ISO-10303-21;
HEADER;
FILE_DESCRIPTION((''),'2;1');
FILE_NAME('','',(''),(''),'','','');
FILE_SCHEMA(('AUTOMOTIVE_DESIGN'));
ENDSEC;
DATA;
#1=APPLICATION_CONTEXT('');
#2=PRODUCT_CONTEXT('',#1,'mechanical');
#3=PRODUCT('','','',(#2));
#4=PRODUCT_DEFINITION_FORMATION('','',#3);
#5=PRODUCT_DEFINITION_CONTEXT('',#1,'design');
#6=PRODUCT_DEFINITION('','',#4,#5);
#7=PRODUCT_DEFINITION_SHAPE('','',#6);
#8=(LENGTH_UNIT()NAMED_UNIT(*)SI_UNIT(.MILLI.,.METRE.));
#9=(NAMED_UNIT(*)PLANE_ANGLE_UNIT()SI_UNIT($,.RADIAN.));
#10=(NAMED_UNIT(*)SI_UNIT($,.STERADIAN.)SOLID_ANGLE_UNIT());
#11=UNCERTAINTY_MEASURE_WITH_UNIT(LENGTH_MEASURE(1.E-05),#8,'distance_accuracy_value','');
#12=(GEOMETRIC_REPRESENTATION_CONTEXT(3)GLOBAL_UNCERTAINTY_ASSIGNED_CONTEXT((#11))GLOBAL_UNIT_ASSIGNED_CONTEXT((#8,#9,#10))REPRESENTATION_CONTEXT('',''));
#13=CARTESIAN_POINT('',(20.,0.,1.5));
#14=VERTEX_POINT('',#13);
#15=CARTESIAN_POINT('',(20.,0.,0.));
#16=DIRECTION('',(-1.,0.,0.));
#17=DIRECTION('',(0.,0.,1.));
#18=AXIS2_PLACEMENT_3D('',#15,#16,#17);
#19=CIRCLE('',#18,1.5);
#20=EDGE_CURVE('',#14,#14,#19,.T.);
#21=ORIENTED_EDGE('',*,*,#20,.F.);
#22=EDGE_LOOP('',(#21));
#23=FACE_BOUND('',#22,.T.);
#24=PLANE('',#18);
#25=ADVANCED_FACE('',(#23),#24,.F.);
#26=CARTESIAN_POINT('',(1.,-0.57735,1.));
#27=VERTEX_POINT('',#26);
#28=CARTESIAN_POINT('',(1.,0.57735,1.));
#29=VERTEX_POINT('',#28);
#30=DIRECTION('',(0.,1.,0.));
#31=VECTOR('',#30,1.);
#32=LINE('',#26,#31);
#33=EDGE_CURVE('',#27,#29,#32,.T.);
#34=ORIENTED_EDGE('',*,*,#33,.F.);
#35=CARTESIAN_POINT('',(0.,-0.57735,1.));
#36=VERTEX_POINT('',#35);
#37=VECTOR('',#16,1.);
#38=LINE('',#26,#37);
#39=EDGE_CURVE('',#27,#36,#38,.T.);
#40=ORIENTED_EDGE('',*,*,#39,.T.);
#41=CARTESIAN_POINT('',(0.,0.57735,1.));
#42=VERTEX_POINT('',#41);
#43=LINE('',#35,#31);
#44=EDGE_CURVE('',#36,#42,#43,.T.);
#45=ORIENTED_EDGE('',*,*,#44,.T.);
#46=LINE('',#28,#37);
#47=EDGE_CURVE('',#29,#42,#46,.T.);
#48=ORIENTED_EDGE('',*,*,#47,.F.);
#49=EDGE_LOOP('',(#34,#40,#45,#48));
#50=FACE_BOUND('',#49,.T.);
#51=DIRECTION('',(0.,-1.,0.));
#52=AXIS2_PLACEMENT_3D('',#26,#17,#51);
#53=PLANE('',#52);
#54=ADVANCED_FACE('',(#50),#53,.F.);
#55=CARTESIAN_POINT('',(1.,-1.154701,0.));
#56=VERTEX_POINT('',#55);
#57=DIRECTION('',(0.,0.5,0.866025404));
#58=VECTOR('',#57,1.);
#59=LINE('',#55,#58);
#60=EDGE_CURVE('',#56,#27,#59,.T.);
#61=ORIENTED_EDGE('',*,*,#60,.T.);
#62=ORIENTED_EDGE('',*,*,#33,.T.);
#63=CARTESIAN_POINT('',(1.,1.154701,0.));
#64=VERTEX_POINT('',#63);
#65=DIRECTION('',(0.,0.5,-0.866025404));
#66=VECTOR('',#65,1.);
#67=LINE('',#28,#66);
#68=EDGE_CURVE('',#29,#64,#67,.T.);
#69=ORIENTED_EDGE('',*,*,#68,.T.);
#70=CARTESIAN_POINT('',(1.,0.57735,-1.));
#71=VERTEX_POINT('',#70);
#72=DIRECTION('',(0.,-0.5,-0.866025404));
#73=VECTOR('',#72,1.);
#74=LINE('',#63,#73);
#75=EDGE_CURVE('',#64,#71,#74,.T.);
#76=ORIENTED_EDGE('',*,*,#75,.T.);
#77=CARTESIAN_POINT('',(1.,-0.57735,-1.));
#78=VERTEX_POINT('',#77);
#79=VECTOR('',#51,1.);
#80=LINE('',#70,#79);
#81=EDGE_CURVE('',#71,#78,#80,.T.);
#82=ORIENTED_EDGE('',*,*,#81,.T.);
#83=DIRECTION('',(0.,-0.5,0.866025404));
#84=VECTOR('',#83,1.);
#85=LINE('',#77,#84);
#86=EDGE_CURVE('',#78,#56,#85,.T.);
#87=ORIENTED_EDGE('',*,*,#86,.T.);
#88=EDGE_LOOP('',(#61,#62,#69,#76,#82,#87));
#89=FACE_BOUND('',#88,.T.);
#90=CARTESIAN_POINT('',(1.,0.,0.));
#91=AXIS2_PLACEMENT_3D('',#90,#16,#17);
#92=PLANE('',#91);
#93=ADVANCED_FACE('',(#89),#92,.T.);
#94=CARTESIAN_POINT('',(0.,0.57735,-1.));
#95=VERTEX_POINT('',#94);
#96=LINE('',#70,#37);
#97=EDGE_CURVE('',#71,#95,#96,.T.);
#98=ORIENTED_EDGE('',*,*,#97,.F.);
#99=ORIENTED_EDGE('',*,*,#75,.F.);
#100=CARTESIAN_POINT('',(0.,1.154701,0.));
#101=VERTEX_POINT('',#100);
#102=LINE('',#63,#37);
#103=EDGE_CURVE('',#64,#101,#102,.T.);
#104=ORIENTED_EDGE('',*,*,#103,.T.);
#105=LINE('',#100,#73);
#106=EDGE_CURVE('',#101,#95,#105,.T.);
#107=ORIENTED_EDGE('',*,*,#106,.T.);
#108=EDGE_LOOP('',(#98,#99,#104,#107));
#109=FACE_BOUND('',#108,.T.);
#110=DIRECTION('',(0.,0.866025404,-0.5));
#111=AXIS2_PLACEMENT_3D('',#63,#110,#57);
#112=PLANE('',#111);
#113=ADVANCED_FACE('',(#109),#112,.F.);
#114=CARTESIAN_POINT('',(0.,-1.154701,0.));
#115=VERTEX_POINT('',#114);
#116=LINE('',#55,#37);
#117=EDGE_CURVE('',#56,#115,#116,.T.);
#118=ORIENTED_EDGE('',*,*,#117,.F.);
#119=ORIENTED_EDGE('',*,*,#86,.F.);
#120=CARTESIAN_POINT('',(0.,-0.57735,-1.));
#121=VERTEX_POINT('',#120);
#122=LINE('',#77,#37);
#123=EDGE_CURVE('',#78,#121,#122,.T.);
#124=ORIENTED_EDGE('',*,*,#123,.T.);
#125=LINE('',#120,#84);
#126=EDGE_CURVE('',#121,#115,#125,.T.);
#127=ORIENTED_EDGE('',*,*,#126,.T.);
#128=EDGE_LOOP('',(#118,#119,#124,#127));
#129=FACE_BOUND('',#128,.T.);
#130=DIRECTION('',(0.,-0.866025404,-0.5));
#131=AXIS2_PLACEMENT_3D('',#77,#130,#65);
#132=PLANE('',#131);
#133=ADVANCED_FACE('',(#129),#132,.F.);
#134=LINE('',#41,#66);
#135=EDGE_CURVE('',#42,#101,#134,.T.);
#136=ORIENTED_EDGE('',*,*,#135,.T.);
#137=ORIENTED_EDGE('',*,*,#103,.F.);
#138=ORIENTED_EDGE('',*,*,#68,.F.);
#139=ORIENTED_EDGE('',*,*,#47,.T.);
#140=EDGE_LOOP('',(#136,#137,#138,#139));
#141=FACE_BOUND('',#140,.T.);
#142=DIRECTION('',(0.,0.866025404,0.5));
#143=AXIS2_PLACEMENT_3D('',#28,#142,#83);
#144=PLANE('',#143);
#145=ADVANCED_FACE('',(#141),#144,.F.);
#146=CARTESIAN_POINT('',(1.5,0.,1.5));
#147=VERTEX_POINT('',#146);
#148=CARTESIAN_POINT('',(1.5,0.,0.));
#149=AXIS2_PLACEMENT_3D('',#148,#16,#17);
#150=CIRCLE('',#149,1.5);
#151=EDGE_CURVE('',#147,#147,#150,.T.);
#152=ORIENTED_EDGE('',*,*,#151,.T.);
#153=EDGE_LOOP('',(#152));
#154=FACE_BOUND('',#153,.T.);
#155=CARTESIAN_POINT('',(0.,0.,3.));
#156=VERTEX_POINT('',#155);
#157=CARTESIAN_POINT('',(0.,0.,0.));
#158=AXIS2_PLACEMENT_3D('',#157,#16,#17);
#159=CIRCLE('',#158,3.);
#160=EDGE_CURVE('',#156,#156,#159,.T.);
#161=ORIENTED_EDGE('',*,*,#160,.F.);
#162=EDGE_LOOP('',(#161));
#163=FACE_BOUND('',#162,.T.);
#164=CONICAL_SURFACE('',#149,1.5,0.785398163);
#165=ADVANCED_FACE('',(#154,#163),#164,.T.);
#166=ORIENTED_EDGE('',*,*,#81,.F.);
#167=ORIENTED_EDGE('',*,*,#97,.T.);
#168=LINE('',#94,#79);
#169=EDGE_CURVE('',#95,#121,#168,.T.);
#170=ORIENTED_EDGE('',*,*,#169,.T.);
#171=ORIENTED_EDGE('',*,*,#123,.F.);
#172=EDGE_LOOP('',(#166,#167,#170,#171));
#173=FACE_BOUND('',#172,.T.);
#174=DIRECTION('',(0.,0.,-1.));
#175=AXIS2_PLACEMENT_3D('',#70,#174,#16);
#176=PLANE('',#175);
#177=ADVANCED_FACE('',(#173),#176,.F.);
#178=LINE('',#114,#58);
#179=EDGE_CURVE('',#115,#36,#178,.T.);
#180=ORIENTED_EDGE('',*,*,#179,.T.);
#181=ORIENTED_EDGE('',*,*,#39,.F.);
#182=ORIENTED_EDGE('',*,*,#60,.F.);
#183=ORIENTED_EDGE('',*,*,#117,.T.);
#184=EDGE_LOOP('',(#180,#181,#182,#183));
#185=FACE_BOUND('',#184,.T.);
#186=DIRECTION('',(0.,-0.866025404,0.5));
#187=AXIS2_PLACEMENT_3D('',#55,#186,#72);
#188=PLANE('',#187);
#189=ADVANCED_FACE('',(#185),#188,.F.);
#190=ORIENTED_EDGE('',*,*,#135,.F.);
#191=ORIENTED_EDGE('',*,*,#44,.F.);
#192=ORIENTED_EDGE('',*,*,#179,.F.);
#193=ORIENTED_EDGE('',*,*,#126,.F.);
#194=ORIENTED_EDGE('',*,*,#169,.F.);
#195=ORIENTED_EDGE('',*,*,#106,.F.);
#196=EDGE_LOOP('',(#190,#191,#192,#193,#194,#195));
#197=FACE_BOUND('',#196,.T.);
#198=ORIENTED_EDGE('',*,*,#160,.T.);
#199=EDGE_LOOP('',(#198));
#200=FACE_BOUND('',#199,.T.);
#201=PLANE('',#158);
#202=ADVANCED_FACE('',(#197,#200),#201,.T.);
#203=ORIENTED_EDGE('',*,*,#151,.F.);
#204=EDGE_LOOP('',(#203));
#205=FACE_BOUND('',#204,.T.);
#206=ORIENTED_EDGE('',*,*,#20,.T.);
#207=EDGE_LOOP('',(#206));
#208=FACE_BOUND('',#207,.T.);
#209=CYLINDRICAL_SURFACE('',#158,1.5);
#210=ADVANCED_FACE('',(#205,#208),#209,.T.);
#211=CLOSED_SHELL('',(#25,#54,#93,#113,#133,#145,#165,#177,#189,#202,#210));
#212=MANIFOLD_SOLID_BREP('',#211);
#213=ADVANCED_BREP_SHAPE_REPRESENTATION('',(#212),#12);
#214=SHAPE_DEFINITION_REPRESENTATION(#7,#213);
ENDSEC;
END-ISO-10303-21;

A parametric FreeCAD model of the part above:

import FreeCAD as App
import Part
import Sketcher
Q = App.Units.Quantity

doc = App.newDocument("Part")
body = doc.addObject("PartDesign::Body", "Body")

# Sketch on XY plane
sketch1 = doc.addObject("Sketcher::SketchObject", "Sketch")
body.addObject(sketch1)
sketch1.AttachmentSupport = (doc.XY_Plane, [""])
sketch1.MapMode = "FlatFace"
sketch1.addGeometry(Part.LineSegment(App.Vector(0, 3, 0), App.Vector(0, 0, 0)), False)
sketch1.addGeometry(Part.LineSegment(App.Vector(0, 0, 0), App.Vector(20, 0, 0)), False)
sketch1.addGeometry(Part.LineSegment(App.Vector(20, 0, 0), App.Vector(20, 1.5, 0)), False)
sketch1.addGeometry(Part.LineSegment(App.Vector(20, 1.5, 0), App.Vector(1.5, 1.5, 0)), False)
sketch1.addGeometry(Part.LineSegment(App.Vector(1.5, 1.5, 0), App.Vector(0, 3, 0)), False)
sketch1.addConstraint(Sketcher.Constraint("Coincident", 0, 2, 1, 1))
sketch1.addConstraint(Sketcher.Constraint("Coincident", 1, 2, 2, 1))
sketch1.addConstraint(Sketcher.Constraint("Coincident", 2, 2, 3, 1))
sketch1.addConstraint(Sketcher.Constraint("Coincident", 3, 2, 4, 1))
sketch1.addConstraint(Sketcher.Constraint("Coincident", 4, 2, 0, 1))
sketch1.addConstraint(Sketcher.Constraint("Vertical", 0))
sketch1.addConstraint(Sketcher.Constraint("Horizontal", 1))
sketch1.addConstraint(Sketcher.Constraint("Vertical", 2))
sketch1.addConstraint(Sketcher.Constraint("Horizontal", 3))
sketch1.addConstraint(Sketcher.Constraint("Coincident", 0, 2, -1, 1))
sketch1.addConstraint(Sketcher.Constraint("DistanceX", 1, 1, 1, 2, 20.0))
sketch1.addConstraint(Sketcher.Constraint("DistanceY", 0, 2, 0, 1, 3.0))
sketch1.addConstraint(Sketcher.Constraint("Angle", 4, Q("135 deg")))
sketch1.addConstraint(Sketcher.Constraint("DistanceX", 3, 2, 3, 1, 18.5))
revolution = doc.addObject("PartDesign::Revolution", "Revolution")
body.addObject(revolution)
revolution.Profile = sketch1
revolution.ReferenceAxis = (sketch1, ["H_Axis"])
revolution.Angle = 360

# Sketch on YZ plane
sketch2 = doc.addObject("Sketcher::SketchObject", "Sketch001")
body.addObject(sketch2)
sketch2.AttachmentSupport = (doc.YZ_Plane, [""])
sketch2.MapMode = "FlatFace"
sketch2.addGeometry(Part.LineSegment(App.Vector(1.2, 0, 0), App.Vector(0.6, -1, 0)), False)
sketch2.addGeometry(Part.LineSegment(App.Vector(0.6, -1, 0), App.Vector(-0.6, -1, 0)), False)
sketch2.addGeometry(Part.LineSegment(App.Vector(-0.6, -1, 0), App.Vector(-1.2, 0, 0)), False)
sketch2.addGeometry(Part.LineSegment(App.Vector(-1.2, 0, 0), App.Vector(-0.6, 1, 0)), False)
sketch2.addGeometry(Part.LineSegment(App.Vector(-0.6, 1, 0), App.Vector(0.6, 1, 0)), False)
sketch2.addGeometry(Part.LineSegment(App.Vector(0.6, 1, 0), App.Vector(1.2, 0, 0)), False)
sketch2.addConstraint(Sketcher.Constraint("Coincident", 0, 2, 1, 1))
sketch2.addConstraint(Sketcher.Constraint("Coincident", 1, 2, 2, 1))
sketch2.addConstraint(Sketcher.Constraint("Coincident", 2, 2, 3, 1))
sketch2.addConstraint(Sketcher.Constraint("Coincident", 3, 2, 4, 1))
sketch2.addConstraint(Sketcher.Constraint("Coincident", 4, 2, 5, 1))
sketch2.addConstraint(Sketcher.Constraint("Coincident", 5, 2, 0, 1))
sketch2.addConstraint(Sketcher.Constraint("Horizontal", 1))
sketch2.addConstraint(Sketcher.Constraint("Horizontal", 4))
sketch2.addConstraint(Sketcher.Constraint("Symmetric", 0, 2, 3, 2, -1, 1))
sketch2.addConstraint(Sketcher.Constraint("Symmetric", 2, 2, 5, 2, -1, 1))
sketch2.addConstraint(Sketcher.Constraint("PointOnObject", 2, 2, -1))
sketch2.addConstraint(Sketcher.Constraint("Parallel", 2, 5))
sketch2.addConstraint(Sketcher.Constraint("Vertical", 1, 2, 3, 2))
sketch2.addConstraint(Sketcher.Constraint("Angle", 0, Q("-120 deg")))
sketch2.addConstraint(Sketcher.Constraint("DistanceY", 0, 2, -1, 1, 1.0))
sketch2.addConstraint(Sketcher.Constraint("DistanceX", 1, 2, 1, 1, 1.154701))
pocket1 = doc.addObject("PartDesign::Pocket", "Pocket")
body.addObject(pocket1)
pocket1.Profile = sketch2
pocket1.Length = 1
pocket1.Reversed = True

doc.recompute()
